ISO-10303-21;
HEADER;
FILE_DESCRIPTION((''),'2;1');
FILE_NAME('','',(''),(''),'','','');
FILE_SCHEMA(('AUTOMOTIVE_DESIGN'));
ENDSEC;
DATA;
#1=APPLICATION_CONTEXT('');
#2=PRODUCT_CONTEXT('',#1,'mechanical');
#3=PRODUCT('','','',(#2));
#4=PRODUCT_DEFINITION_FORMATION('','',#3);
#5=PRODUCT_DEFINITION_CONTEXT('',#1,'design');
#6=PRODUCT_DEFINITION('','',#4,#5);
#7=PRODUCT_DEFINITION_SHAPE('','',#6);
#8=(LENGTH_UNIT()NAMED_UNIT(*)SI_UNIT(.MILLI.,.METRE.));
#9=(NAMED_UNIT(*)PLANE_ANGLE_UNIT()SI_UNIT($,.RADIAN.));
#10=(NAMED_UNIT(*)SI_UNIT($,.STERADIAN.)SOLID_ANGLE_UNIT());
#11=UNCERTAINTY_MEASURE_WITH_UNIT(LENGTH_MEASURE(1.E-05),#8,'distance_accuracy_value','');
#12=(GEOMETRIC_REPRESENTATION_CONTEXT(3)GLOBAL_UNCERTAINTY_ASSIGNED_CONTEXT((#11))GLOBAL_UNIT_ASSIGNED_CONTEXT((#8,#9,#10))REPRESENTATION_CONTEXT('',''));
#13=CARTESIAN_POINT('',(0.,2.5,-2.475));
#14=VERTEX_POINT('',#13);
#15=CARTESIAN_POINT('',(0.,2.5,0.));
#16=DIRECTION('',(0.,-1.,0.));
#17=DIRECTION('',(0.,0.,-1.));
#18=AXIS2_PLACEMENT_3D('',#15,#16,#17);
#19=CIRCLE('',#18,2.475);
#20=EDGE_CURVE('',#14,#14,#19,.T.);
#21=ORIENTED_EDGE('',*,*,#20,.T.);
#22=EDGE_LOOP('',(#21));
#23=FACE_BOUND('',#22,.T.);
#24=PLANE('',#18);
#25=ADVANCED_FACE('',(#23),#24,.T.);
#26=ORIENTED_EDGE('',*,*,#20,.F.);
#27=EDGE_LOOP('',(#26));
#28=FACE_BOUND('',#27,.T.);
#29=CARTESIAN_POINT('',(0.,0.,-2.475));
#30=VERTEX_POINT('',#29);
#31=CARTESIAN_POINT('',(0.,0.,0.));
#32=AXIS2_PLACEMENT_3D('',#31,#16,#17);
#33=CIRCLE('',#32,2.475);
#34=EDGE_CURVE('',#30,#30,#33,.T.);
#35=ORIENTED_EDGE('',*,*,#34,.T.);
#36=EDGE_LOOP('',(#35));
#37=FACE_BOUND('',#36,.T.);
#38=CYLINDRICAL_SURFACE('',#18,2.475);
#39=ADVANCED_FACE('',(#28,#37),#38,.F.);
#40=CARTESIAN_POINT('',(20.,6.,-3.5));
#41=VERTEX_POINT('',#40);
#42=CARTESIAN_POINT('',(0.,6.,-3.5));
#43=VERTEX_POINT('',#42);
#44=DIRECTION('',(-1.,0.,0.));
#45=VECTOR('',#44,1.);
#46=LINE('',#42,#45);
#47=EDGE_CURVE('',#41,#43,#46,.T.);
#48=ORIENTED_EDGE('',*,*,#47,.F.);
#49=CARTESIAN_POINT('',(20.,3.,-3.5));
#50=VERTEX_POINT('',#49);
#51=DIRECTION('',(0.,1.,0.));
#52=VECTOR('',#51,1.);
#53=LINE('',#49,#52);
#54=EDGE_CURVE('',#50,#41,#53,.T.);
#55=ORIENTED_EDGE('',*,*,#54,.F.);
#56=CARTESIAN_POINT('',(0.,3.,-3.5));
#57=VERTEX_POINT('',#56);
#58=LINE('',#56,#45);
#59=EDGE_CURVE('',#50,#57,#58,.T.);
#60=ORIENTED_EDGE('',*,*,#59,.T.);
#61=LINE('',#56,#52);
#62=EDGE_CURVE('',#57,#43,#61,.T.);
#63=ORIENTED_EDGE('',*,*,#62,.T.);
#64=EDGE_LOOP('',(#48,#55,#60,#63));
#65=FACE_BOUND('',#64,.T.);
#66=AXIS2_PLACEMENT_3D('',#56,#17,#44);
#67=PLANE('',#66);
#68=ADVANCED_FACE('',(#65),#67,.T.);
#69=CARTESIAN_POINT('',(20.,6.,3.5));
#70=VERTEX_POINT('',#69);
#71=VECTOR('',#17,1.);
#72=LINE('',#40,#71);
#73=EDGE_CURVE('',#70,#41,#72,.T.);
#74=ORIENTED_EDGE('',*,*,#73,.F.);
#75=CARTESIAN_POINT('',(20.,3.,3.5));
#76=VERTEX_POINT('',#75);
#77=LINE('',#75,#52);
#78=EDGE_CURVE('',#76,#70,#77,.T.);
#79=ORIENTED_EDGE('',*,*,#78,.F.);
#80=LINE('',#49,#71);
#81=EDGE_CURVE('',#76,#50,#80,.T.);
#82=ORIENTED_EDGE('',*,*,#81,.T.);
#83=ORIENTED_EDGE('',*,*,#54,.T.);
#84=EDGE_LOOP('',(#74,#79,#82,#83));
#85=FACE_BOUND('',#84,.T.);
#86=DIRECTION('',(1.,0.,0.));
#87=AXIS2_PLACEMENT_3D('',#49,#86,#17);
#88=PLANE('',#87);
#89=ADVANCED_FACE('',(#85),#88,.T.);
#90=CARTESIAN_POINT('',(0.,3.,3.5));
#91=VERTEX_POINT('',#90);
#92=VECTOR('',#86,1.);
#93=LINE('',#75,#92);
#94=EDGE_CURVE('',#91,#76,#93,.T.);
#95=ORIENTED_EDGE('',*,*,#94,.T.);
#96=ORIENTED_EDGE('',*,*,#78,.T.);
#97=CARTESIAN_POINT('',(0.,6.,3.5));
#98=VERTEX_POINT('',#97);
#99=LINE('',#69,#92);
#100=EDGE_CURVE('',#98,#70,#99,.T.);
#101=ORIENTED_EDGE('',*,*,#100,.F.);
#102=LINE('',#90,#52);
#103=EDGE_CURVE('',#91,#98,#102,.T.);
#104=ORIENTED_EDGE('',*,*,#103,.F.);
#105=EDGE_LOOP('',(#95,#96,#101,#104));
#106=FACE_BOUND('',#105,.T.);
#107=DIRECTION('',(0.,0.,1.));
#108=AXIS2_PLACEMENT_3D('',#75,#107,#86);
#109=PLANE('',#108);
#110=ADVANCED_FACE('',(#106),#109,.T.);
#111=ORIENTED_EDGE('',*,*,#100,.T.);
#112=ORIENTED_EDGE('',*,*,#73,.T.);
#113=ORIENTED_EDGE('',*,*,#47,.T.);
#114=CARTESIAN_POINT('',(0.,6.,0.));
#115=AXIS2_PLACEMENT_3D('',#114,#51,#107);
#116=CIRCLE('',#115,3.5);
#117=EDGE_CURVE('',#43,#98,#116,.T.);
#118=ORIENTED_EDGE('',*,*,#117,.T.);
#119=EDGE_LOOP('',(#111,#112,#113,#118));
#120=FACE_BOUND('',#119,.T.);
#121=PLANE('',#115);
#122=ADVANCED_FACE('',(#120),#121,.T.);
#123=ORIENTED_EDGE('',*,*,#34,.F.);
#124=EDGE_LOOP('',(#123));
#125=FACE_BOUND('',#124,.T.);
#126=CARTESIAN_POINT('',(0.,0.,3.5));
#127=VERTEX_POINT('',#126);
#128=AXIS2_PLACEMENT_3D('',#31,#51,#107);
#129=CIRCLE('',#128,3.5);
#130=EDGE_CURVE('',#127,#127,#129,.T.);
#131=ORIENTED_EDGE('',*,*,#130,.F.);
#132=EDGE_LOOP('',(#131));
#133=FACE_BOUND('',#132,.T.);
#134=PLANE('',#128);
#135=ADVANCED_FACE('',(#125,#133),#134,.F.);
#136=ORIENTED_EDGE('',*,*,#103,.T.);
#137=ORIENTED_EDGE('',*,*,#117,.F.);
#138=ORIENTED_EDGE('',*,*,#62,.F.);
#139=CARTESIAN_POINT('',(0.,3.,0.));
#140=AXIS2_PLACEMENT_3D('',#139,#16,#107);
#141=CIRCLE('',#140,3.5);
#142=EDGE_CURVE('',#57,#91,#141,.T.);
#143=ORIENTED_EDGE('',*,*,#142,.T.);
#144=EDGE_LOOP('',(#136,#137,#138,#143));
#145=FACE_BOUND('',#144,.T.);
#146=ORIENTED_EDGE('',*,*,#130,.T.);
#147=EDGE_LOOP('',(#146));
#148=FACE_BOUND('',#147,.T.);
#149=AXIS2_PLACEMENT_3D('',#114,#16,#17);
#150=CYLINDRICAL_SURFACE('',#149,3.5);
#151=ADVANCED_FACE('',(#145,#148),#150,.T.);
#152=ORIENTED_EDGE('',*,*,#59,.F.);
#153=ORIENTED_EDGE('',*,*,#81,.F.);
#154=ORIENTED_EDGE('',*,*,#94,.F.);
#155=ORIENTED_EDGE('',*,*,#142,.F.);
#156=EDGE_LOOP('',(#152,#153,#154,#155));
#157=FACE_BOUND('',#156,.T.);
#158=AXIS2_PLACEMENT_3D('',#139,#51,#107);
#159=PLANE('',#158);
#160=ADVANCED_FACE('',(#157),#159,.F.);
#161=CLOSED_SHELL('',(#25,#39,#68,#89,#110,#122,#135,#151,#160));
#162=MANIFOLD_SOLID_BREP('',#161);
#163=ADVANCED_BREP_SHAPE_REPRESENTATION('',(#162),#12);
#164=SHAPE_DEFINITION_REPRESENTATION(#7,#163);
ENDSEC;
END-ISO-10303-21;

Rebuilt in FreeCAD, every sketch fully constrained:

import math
import FreeCAD as App
import Part
import Sketcher
Q = App.Units.Quantity

doc = App.newDocument("Part")
body = doc.addObject("PartDesign::Body", "Body")

# Sketch on XZ plane
sketch1 = body.newObject("Sketcher::SketchObject", "Sketch")
sketch1.AttachmentSupport = (doc.getObject("XZ_Plane"), [""])
sketch1.MapMode = "FlatFace"
sketch1.addGeometry(Part.Circle(App.Vector(0, 0, 0), App.Vector(0, 0, 1), 3.5), False)
sketch1.addConstraint([
    Sketcher.Constraint("Coincident", 0, 3, -1, 1),
    Sketcher.Constraint("Diameter", 0, Q("7 mm")),
])
pad1 = body.newObject("PartDesign::Pad", "Pad")
pad1.Profile = sketch1
pad1.Length = 6
pad1.Reversed = True

# Sketch on XZ plane
sketch2 = body.newObject("Sketcher::SketchObject", "Sketch001")
sketch2.AttachmentSupport = (doc.getObject("XZ_Plane"), [""])
sketch2.MapMode = "FlatFace"
sketch2.addGeometry(Part.Circle(App.Vector(0, 0, 0), App.Vector(0, 0, 1), 2.475), False)
sketch2.addConstraint([
    Sketcher.Constraint("Coincident", 0, 3, -1, 1),
    Sketcher.Constraint("Diameter", 0, Q("4.95 mm")),
])
pocket1 = body.newObject("PartDesign::Pocket", "Pocket")
pocket1.Profile = sketch2
pocket1.Length = 2.5

# Sketch on XZ plane
sketch3 = body.newObject("Sketcher::SketchObject", "Sketch002")
sketch3.AttachmentSupport = (doc.getObject("XZ_Plane"), [""])
sketch3.MapMode = "FlatFace"
sketch3.AttachmentOffset = App.Placement(App.Vector(0, 0, -6), App.Rotation())
sketch3.addGeometry([
    Part.LineSegment(App.Vector(20, -3.5, 0), App.Vector(0, -3.5, 0)),
    Part.ArcOfCircle(Part.Circle(App.Vector(0, 0, 0), App.Vector(0, 0, 1), 3.5), math.radians(-90), math.radians(90)),
    Part.LineSegment(App.Vector(0, 3.5, 0), App.Vector(20, 3.5, 0)),
    Part.LineSegment(App.Vector(20, 3.5, 0), App.Vector(20, -3.5, 0)),
], False)
sketch3.addConstraint([
    Sketcher.Constraint("Tangent", 0, 2, 1, 1),
    Sketcher.Constraint("Tangent", 1, 2, 2, 1),
    Sketcher.Constraint("Coincident", 2, 2, 3, 1),
    Sketcher.Constraint("Coincident", 3, 2, 0, 1),
    Sketcher.Constraint("Horizontal", 0),
    Sketcher.Constraint("Horizontal", 2),
    Sketcher.Constraint("Vertical", 3),
    Sketcher.Constraint("Coincident", 1, 3, -1, 1),
    Sketcher.Constraint("Radius", 1, Q("3.5 mm")),
    Sketcher.Constraint("DistanceX", 0, 2, 0, 1, Q("20 mm")),
])
pad2 = body.newObject("PartDesign::Pad", "Pad001")
pad2.Profile = sketch3
pad2.Length = 3

doc.recompute()
